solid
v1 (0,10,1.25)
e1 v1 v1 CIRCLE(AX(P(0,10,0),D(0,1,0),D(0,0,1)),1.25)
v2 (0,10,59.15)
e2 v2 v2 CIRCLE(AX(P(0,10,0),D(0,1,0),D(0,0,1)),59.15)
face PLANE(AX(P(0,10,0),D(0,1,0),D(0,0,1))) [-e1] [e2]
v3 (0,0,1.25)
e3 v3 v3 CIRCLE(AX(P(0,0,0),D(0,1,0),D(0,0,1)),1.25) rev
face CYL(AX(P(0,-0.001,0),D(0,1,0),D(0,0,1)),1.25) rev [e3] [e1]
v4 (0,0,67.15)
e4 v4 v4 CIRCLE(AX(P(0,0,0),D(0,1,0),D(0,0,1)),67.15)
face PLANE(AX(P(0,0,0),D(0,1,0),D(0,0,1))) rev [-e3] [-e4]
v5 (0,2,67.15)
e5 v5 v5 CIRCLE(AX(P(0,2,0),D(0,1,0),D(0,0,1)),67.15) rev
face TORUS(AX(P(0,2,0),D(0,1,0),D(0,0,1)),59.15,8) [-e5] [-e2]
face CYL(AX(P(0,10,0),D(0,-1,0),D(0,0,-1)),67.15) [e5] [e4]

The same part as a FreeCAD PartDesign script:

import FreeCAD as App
import Part
import Sketcher

V = App.Vector
Q = App.Units.Quantity


def edges_at(feature, points):
    """Names of the edges that pass closest to the given points."""
    edges = feature.Shape.Edges
    near = lambda p: min(range(len(edges)), key=lambda i: edges[i].distToShape(Part.Vertex(*p))[0])
    return sorted({f"Edge{near(p) + 1}" for p in points})

doc = App.newDocument("Part")
params = doc.addObject("Spreadsheet::Sheet", "Params")
for row, (alias, value) in enumerate([
    ("sketch1_diameter", "134.3 mm"),
    ("pad1_length", "10 mm"),
    ("fillet_radius", "8 mm"),
    ("sketch2_diameter", "2.5 mm"),
], start=1):
    params.set(f"A{row}", alias)
    params.set(f"B{row}", "=" + value)
    params.setAlias(f"B{row}", alias)

body = doc.addObject("PartDesign::Body", "Body")

sketch1 = body.newObject("Sketcher::SketchObject", "Sketch")
sketch1.AttachmentSupport = (doc.getObject("XZ_Plane"), [""])
sketch1.MapMode = "FlatFace"
sketch1.addGeometry(Part.Circle(V(0, 0, 0), V(0, 0, 1), 67.15), False)
sketch1.addConstraint([
    Sketcher.Constraint("Coincident", 0, 3, -1, 1),
    Sketcher.Constraint("Diameter", 0, Q("134.3 mm")),
])
sketch1.setExpression("Constraints[1]", "Params.sketch1_diameter")
pad1 = body.newObject("PartDesign::Pad", "Pad")
pad1.Profile = sketch1
pad1.setExpression("Length", "Params.pad1_length")
pad1.Reversed = True
doc.recompute()

fillet = body.newObject("PartDesign::Fillet", "Fillet")
fillet.Base = (pad1, edges_at(pad1, [(0, 10, -67.15)]))
fillet.setExpression("Radius", "Params.fillet_radius")

sketch2 = body.newObject("Sketcher::SketchObject", "Sketch001")
sketch2.AttachmentSupport = (doc.getObject("XZ_Plane"), [""])
sketch2.MapMode = "FlatFace"
sketch2.AttachmentOffset = App.Placement(V(0, 0, -10), App.Rotation())
sketch2.addGeometry(Part.Circle(V(0, 0, 0), V(0, 0, 1), 1.25), False)
sketch2.addConstraint([
    Sketcher.Constraint("Coincident", 0, 3, -1, 1),
    Sketcher.Constraint("Diameter", 0, Q("2.5 mm")),
])
sketch2.setExpression("Constraints[1]", "Params.sketch2_diameter")
pocket1 = body.newObject("PartDesign::Pocket", "Pocket")
pocket1.Profile = sketch2
pocket1.Type = "UpToFirst"
pocket1.Reversed = True

doc.recompute()
